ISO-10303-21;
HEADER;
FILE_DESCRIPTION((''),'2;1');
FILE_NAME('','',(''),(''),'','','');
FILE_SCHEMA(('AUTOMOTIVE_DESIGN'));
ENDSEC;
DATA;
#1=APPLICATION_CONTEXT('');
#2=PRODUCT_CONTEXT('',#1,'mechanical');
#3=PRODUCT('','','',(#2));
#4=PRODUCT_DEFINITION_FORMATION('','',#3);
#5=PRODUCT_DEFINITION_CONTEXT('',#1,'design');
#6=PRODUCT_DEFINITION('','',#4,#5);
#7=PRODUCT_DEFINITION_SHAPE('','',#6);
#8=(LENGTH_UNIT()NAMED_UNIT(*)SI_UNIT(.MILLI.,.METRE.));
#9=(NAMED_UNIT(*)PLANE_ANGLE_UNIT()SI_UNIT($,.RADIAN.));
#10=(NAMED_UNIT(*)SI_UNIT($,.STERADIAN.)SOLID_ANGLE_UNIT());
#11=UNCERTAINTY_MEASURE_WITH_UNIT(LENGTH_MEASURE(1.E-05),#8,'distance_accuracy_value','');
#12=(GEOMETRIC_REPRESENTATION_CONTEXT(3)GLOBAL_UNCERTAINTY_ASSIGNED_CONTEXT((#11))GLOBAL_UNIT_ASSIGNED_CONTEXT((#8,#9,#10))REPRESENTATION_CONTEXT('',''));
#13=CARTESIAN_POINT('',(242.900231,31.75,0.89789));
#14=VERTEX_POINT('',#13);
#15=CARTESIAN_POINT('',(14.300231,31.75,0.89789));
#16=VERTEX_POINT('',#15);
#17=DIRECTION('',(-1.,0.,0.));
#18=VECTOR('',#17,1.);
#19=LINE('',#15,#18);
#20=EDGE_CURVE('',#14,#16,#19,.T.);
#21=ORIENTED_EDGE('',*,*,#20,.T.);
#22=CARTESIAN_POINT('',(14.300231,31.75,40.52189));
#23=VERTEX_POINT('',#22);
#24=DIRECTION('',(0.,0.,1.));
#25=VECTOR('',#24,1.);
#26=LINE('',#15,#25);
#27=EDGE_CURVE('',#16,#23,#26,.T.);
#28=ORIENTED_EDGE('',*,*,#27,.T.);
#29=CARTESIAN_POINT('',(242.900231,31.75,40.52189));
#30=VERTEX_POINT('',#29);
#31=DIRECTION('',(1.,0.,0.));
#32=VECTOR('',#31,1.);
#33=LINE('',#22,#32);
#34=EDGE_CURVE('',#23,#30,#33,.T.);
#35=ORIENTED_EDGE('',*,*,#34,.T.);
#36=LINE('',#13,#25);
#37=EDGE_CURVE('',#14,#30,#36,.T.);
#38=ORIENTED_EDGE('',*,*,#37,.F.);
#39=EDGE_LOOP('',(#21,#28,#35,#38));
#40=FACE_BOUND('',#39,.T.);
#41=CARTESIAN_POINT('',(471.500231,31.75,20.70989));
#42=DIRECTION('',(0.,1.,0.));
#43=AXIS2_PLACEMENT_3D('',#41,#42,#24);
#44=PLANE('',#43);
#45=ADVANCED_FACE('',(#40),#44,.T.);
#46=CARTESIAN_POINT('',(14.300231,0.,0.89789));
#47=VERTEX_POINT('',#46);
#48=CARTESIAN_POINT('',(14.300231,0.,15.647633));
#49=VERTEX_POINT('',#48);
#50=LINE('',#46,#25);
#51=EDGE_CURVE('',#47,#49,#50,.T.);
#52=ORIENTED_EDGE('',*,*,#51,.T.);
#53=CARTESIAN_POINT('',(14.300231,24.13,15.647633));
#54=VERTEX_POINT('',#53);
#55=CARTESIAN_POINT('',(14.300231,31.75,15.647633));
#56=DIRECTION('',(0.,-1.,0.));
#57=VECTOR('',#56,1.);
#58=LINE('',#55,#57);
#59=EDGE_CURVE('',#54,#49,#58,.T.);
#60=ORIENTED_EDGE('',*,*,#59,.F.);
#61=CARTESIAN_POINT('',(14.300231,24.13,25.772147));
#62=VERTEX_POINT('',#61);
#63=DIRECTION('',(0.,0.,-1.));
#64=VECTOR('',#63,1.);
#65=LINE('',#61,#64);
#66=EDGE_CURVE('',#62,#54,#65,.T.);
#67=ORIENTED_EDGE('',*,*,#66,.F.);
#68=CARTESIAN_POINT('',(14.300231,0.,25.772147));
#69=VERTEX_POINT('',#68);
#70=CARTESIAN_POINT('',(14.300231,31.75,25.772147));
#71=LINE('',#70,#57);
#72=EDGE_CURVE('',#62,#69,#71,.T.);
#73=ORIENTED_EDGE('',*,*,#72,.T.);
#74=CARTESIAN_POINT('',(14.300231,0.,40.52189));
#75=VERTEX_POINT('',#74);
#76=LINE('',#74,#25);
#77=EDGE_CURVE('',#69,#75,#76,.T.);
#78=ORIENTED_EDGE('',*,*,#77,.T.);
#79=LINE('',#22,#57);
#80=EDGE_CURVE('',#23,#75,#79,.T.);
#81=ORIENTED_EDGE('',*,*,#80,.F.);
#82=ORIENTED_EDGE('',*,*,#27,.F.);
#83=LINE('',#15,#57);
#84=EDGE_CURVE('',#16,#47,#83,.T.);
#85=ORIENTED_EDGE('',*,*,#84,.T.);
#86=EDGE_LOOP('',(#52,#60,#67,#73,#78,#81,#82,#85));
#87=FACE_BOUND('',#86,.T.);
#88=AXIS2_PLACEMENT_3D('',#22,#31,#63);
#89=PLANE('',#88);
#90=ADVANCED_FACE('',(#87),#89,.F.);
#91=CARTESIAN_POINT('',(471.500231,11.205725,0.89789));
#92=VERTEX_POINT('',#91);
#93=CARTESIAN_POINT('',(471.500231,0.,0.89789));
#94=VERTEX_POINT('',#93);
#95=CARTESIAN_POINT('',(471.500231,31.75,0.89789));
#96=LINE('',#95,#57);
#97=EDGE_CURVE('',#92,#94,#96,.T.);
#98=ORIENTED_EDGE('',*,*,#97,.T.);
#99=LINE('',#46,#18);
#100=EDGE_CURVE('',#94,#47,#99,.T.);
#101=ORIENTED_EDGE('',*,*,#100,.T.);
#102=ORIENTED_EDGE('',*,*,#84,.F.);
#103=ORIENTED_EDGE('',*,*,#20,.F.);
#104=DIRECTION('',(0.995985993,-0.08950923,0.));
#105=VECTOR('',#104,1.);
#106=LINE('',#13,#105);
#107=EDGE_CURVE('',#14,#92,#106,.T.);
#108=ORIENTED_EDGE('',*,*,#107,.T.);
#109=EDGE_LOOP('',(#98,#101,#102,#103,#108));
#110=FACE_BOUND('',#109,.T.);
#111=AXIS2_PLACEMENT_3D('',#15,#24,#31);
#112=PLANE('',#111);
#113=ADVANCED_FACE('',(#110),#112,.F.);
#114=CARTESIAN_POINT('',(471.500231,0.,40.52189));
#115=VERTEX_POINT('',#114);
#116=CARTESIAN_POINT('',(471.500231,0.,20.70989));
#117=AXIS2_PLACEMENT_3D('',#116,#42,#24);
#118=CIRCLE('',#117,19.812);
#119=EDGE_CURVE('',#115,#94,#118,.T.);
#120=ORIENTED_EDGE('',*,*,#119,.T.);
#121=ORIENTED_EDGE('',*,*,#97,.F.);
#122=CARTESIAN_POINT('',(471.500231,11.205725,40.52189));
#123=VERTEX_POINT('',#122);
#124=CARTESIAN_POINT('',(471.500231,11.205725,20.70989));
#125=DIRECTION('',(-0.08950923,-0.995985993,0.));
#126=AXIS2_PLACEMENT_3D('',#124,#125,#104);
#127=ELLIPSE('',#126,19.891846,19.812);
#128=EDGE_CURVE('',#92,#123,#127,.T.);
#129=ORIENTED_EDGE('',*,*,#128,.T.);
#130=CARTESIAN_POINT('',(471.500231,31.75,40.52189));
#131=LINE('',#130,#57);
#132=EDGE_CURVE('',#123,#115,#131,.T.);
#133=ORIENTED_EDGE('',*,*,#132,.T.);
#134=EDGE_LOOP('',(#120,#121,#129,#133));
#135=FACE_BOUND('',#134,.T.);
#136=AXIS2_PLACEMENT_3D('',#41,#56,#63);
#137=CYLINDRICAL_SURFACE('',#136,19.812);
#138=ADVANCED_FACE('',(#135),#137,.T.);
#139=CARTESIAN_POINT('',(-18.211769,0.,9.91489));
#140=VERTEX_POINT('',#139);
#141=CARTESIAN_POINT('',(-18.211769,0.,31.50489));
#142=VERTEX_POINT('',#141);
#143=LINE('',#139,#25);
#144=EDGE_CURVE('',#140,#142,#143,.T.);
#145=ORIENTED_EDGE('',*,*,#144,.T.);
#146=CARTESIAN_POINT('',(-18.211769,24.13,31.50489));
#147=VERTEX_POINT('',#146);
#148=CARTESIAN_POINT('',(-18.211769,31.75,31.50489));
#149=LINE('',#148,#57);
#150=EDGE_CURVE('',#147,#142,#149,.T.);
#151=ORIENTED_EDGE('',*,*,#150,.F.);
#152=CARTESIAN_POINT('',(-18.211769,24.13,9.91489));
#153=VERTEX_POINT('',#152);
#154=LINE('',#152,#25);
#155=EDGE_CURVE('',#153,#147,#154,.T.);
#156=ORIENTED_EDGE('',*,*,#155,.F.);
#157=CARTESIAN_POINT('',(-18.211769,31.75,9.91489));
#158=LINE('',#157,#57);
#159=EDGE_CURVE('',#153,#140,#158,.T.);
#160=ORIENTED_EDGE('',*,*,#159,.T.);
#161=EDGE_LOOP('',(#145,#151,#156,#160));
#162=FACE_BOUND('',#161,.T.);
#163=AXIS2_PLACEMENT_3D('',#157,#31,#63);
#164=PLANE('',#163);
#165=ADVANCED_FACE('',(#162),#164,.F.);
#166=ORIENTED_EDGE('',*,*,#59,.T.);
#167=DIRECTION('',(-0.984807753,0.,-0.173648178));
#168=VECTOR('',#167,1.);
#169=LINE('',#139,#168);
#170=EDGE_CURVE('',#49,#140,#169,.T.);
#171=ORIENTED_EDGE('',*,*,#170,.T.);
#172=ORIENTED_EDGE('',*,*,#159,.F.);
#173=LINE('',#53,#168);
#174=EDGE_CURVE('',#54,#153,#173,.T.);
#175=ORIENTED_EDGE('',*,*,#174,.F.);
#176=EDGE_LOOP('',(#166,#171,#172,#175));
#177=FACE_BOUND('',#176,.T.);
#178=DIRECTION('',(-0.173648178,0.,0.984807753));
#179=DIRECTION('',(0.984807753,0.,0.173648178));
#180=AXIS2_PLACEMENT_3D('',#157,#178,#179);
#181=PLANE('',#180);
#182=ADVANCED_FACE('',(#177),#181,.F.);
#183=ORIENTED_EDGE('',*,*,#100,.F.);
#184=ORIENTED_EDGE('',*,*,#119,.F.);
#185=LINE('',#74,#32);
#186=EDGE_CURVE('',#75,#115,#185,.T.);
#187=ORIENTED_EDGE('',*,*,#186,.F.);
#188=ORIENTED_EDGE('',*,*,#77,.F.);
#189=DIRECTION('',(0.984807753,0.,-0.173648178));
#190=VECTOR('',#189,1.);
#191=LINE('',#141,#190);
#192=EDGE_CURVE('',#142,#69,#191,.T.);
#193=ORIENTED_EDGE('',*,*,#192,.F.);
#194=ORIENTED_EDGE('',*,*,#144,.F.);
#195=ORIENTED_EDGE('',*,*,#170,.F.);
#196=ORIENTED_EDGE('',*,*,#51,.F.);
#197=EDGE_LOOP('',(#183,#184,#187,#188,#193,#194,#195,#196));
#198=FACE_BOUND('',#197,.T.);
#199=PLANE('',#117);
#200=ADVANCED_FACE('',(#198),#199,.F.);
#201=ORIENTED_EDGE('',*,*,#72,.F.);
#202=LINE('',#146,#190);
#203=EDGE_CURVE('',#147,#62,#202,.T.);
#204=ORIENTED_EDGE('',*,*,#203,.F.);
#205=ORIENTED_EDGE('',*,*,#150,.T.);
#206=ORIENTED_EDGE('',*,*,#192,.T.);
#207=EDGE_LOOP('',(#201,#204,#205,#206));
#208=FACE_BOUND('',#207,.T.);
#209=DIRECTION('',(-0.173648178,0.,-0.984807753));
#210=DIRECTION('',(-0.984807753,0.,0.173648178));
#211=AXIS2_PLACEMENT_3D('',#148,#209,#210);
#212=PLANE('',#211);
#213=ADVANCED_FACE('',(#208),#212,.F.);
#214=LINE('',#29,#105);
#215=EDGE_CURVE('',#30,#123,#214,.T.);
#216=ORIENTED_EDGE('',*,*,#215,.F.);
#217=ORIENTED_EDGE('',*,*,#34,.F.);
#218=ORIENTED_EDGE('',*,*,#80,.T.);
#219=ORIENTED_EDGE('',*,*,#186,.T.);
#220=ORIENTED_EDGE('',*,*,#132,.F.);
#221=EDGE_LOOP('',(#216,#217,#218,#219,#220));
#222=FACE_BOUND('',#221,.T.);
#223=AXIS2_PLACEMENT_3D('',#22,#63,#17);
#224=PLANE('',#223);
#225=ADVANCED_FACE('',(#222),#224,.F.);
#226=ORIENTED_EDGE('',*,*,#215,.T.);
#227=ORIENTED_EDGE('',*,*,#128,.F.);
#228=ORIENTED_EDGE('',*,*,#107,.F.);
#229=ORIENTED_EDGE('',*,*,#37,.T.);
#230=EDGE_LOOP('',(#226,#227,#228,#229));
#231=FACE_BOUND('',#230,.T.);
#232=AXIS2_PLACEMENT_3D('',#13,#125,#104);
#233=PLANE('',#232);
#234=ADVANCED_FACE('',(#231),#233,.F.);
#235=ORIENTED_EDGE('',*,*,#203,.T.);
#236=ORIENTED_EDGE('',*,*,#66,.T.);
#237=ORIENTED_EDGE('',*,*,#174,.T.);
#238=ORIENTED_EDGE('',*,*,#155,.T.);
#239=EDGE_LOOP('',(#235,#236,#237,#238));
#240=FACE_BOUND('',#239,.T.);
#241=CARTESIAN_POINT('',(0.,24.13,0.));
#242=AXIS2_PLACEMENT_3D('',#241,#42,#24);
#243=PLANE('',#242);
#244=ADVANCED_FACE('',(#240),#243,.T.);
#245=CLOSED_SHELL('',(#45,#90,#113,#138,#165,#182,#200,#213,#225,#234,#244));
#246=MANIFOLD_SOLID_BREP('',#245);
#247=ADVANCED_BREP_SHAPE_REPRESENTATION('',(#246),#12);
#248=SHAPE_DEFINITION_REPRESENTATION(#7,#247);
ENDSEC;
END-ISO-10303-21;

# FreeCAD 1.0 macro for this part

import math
import FreeCAD as App
import Part
import Sketcher

V = App.Vector
Q = App.Units.Quantity

doc = App.newDocument("Part")
body = doc.addObject("PartDesign::Body", "Body")

sketch1 = doc.addObject("Sketcher::SketchObject", "Sketch")
body.addObject(sketch1)
sketch1.AttachmentSupport = (doc.XZ_Plane, [""])
sketch1.MapMode = "FlatFace"
sketch1.addGeometry([
    Part.LineSegment(V(-18.211769, 9.91489, 0), V(-18.211769, 31.50489, 0)),
    Part.LineSegment(V(-18.211769, 31.50489, 0), V(14.300231, 25.772147, 0)),
    Part.LineSegment(V(14.300231, 25.772147, 0), V(14.300231, 40.52189, 0)),
    Part.LineSegment(V(14.300231, 40.52189, 0), V(471.500231, 40.52189, 0)),
    Part.ArcOfCircle(Part.Circle(V(471.500231, 20.70989, 0), V(0, 0, 1), 19.812), math.radians(-90), math.radians(90)),
    Part.LineSegment(V(471.500231, 0.89789, 0), V(14.300231, 0.89789, 0)),
    Part.LineSegment(V(14.300231, 0.89789, 0), V(14.300231, 15.647633, 0)),
    Part.LineSegment(V(14.300231, 15.647633, 0), V(-18.211769, 9.91489, 0)),
], False)
sketch1.addConstraint([
    Sketcher.Constraint("Coincident", 0, 2, 1, 1),
    Sketcher.Constraint("Coincident", 1, 2, 2, 1),
    Sketcher.Constraint("Coincident", 2, 2, 3, 1),
    Sketcher.Constraint("Tangent", 3, 2, 4, 2),
    Sketcher.Constraint("Tangent", 4, 1, 5, 1),
    Sketcher.Constraint("Coincident", 5, 2, 6, 1),
    Sketcher.Constraint("Coincident", 6, 2, 7, 1),
    Sketcher.Constraint("Coincident", 7, 2, 0, 1),
    Sketcher.Constraint("Vertical", 0),
    Sketcher.Constraint("Vertical", 2),
    Sketcher.Constraint("Horizontal", 3),
    Sketcher.Constraint("Horizontal", 5),
    Sketcher.Constraint("Vertical", 6),
    Sketcher.Constraint("Vertical", 2, 2, 5, 2),
    Sketcher.Constraint("Equal", 2, 6),
    Sketcher.Constraint("Equal", 1, 7),
    Sketcher.Constraint("DistanceX", 3, 1, 3, 2, Q("18 in")),
    Sketcher.Constraint("Radius", 4, Q("0.78 in")),
    Sketcher.Constraint("Angle", 1, Q("-10 deg")),
    Sketcher.Constraint("DistanceY", 0, 1, 0, 2, Q("0.85 in")),
    Sketcher.Constraint("DistanceX", 0, 2, 4, 3, Q("19.28 in")),
    Sketcher.Constraint("DistanceX", -1, 1, 4, 3, Q("471.500231 mm")),
    Sketcher.Constraint("DistanceY", -1, 1, 4, 3, Q("20.70989 mm")),
])
pad1 = doc.addObject("PartDesign::Pad", "Pad")
body.addObject(pad1)
pad1.Profile = sketch1
pad1.Length = Q("1.25 in")
pad1.Reversed = True

sketch2 = doc.addObject("Sketcher::SketchObject", "Sketch001")
body.addObject(sketch2)
sketch2.AttachmentSupport = (doc.XZ_Plane, [""])
sketch2.MapMode = "FlatFace"
sketch2.AttachmentOffset = App.Placement(V(0, 0, -1.25 * 25.4), App.Rotation())
sketch2.addGeometry([
    Part.LineSegment(V(-18.211769, 9.91489, 0), V(-18.211769, 31.50489, 0)),
    Part.LineSegment(V(-18.211769, 31.50489, 0), V(14.300231, 25.772147, 0)),
    Part.LineSegment(V(14.300231, 25.772147, 0), V(14.300231, 15.647633, 0)),
    Part.LineSegment(V(14.300231, 15.647633, 0), V(-18.211769, 9.91489, 0)),
], False)
sketch2.addConstraint([
    Sketcher.Constraint("Coincident", 0, 2, 1, 1),
    Sketcher.Constraint("Coincident", 1, 2, 2, 1),
    Sketcher.Constraint("Coincident", 2, 2, 3, 1),
    Sketcher.Constraint("Coincident", 3, 2, 0, 1),
    Sketcher.Constraint("Vertical", 0),
    Sketcher.Constraint("Vertical", 2),
    Sketcher.Constraint("Equal", 1, 3),
    Sketcher.Constraint("Angle", 1, Q("-10 deg")),
    Sketcher.Constraint("DistanceY", 0, 1, 0, 2, Q("0.85 in")),
    Sketcher.Constraint("DistanceX", 0, 2, 1, 2, Q("1.28 in")),
    Sketcher.Constraint("DistanceX", 0, 2, -1, 1, Q("18.211769 mm")),
    Sketcher.Constraint("DistanceY", -1, 1, 0, 2, Q("31.50489 mm")),
])
pocket1 = doc.addObject("PartDesign::Pocket", "Pocket")
body.addObject(pocket1)
pocket1.Profile = sketch2
pocket1.Length = Q("0.3 in")
pocket1.Reversed = True

sketch3 = doc.addObject("Sketcher::SketchObject", "Sketch002")
body.addObject(sketch3)
sketch3.AttachmentSupport = (doc.XY_Plane, [""])
sketch3.MapMode = "FlatFace"
sketch3.AttachmentOffset = App.Placement(V(0, 0, 40.52189), App.Rotation())
sketch3.addGeometry([
    Part.LineSegment(V(242.900231, 31.75, 0), V(491.312231, 9.425221, 0)),
    Part.LineSegment(V(491.312231, 9.425221, 0), V(491.312231, 31.75, 0)),
    Part.LineSegment(V(491.312231, 31.75, 0), V(242.900231, 31.75, 0)),
], False)
sketch3.addConstraint([
    Sketcher.Constraint("Coincident", 0, 2, 1, 1),
    Sketcher.Constraint("Coincident", 1, 2, 2, 1),
    Sketcher.Constraint("Coincident", 2, 2, 0, 1),
    Sketcher.Constraint("Vertical", 1),
    Sketcher.Constraint("Horizontal", 2),
    Sketcher.Constraint("DistanceX", 2, 2, 2, 1, Q("9.78 in")),
    Sketcher.Constraint("DistanceY", -1, 1, 1, 2, Q("1.25 in")),
    Sketcher.Constraint("DistanceY", 1, 1, 1, 2, Q("22.324779 mm")),
    Sketcher.Constraint("DistanceX", -1, 1, 0, 2, Q("491.312231 mm")),
])
pocket2 = doc.addObject("PartDesign::Pocket", "Pocket001")
body.addObject(pocket2)
pocket2.Profile = sketch3
pocket2.Length = Q("1.56 in")

doc.recompute()
